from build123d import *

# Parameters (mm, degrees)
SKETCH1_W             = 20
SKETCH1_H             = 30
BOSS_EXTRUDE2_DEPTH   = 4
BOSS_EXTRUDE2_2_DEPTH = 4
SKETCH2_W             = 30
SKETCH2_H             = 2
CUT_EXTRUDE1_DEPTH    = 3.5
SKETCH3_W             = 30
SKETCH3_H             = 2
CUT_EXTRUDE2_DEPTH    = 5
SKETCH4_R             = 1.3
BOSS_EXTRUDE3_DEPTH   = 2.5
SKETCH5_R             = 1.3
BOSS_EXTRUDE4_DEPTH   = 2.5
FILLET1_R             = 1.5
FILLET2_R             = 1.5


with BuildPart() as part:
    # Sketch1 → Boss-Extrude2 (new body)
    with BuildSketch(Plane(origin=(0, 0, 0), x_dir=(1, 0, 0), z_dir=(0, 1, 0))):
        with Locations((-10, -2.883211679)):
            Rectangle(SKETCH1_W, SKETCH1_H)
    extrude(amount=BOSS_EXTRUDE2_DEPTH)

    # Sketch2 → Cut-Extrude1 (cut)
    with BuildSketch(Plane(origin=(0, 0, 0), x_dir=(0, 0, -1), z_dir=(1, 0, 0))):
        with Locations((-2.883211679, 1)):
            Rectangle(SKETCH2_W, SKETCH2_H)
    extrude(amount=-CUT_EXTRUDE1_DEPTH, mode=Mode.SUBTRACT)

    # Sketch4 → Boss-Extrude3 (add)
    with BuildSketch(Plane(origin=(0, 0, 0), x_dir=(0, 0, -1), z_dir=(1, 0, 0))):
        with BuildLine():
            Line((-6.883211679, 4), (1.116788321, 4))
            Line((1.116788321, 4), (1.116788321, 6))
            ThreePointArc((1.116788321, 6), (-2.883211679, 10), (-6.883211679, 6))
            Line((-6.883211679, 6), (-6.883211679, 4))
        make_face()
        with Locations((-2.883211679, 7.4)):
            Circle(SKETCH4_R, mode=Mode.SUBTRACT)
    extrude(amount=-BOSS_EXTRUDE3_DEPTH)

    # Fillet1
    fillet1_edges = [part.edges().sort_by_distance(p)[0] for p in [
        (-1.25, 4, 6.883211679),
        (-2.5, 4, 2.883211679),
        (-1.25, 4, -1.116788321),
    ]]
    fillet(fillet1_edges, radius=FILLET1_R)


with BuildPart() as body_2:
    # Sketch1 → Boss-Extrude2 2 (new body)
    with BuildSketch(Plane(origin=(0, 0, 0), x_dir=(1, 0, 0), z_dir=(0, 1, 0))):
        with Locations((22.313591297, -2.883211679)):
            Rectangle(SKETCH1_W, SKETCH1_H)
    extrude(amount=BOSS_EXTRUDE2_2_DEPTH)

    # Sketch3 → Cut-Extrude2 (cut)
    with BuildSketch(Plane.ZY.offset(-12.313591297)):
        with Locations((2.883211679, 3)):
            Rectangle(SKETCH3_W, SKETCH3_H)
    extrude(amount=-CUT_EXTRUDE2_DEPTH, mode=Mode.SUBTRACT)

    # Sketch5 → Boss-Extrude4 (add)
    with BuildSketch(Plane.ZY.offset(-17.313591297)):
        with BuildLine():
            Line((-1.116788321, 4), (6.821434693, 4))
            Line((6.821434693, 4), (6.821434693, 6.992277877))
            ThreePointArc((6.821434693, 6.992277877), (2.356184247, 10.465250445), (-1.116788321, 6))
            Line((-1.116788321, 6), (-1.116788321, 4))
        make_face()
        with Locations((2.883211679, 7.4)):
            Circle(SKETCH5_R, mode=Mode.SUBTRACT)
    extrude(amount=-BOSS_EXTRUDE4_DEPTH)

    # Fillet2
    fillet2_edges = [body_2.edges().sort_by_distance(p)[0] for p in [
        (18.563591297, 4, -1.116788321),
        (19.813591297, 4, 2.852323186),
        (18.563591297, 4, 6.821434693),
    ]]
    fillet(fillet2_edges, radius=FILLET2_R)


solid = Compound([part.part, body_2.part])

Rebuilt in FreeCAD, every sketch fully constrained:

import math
import FreeCAD as App
import Part
import Sketcher


def edges_at(feature, points):
    """Names of the edges that pass closest to the given points."""
    edges = feature.Shape.Edges
    near = lambda p: min(range(len(edges)), key=lambda i: edges[i].distToShape(Part.Vertex(*p))[0])
    return sorted({f"Edge{near(p) + 1}" for p in points})


def add_polygon(sketch, points):
    """Adds a closed chain of lines whose ends are joined by coincident constraints."""
    first, n = sketch.GeometryCount, len(points)
    for a, b in zip(points, points[1:] + points[:1]):
        sketch.addGeometry(Part.LineSegment(App.Vector(*a, 0), App.Vector(*b, 0)), False)
    for i in range(n):
        sketch.addConstraint(Sketcher.Constraint("Coincident", first + i, 2, first + (i + 1) % n, 1))

doc = App.newDocument("Part")
body = doc.addObject("PartDesign::Body", "Body")

sketch1 = doc.addObject("Sketcher::SketchObject", "Sketch")
body.addObject(sketch1)
sketch1.AttachmentSupport = (doc.XZ_Plane, [""])
sketch1.MapMode = "FlatFace"
add_polygon(sketch1, [(-20, -12.116788), (-20, 17.883212), (0, 17.883212), (0, -12.116788)])
sketch1.addConstraint(Sketcher.Constraint("Vertical", 0))
sketch1.addConstraint(Sketcher.Constraint("Horizontal", 1))
sketch1.addConstraint(Sketcher.Constraint("Vertical", 2))
sketch1.addConstraint(Sketcher.Constraint("Horizontal", 3))
sketch1.addConstraint(Sketcher.Constraint("PointOnObject", 1, 2, -2))
sketch1.addConstraint(Sketcher.Constraint("DistanceX", 1, 1, 1, 2, 20.0))
sketch1.addConstraint(Sketcher.Constraint("DistanceY", 0, 1, 0, 2, 30.0))
sketch1.addConstraint(Sketcher.Constraint("DistanceY", -1, 1, 0, 2, 17.883212))
pad1 = doc.addObject("PartDesign::Pad", "Pad")
body.addObject(pad1)
pad1.Profile = sketch1
pad1.Length = 4
pad1.Reversed = True

sketch2 = doc.addObject("Sketcher::SketchObject", "Sketch001")
body.addObject(sketch2)
sketch2.AttachmentSupport = (doc.YZ_Plane, [""])
sketch2.MapMode = "FlatFace"
add_polygon(sketch2, [(2, 17.883212), (0, 17.883212), (0, -12.116788), (2, -12.116788)])
sketch2.addConstraint(Sketcher.Constraint("Horizontal", 0))
sketch2.addConstraint(Sketcher.Constraint("Vertical", 1))
sketch2.addConstraint(Sketcher.Constraint("Horizontal", 2))
sketch2.addConstraint(Sketcher.Constraint("Vertical", 3))
sketch2.addConstraint(Sketcher.Constraint("PointOnObject", 0, 2, -2))
sketch2.addConstraint(Sketcher.Constraint("DistanceX", 0, 2, 0, 1, 2.0))
sketch2.addConstraint(Sketcher.Constraint("DistanceY", 1, 2, 1, 1, 30.0))
sketch2.addConstraint(Sketcher.Constraint("DistanceY", -1, 1, 0, 2, 17.883212))
pocket1 = doc.addObject("PartDesign::Pocket", "Pocket")
body.addObject(pocket1)
pocket1.Profile = sketch2
pocket1.Length = 3.5

sketch3 = doc.addObject("Sketcher::SketchObject", "Sketch002")
body.addObject(sketch3)
sketch3.AttachmentSupport = (doc.YZ_Plane, [""])
sketch3.MapMode = "FlatFace"
sketch3.addGeometry(Part.LineSegment(App.Vector(4, 6.883212, 0), App.Vector(4, -1.116788, 0)), False)
sketch3.addGeometry(Part.LineSegment(App.Vector(4, -1.116788, 0), App.Vector(6, -1.116788, 0)), False)
sketch3.addGeometry(Part.ArcOfCircle(Part.Circle(App.Vector(6, 2.883212, 0), App.Vector(0, 0, 1), 4), math.radians(-90), math.radians(90)), False)
sketch3.addGeometry(Part.LineSegment(App.Vector(6, 6.883212, 0), App.Vector(4, 6.883212, 0)), False)
sketch3.addGeometry(Part.Circle(App.Vector(7.4, 2.883212, 0), App.Vector(0, 0, 1), 1.3), False)
sketch3.addConstraint(Sketcher.Constraint("Coincident", 0, 2, 1, 1))
sketch3.addConstraint(Sketcher.Constraint("Tangent", 1, 2, 2, 1))
sketch3.addConstraint(Sketcher.Constraint("Tangent", 2, 2, 3, 1))
sketch3.addConstraint(Sketcher.Constraint("Coincident", 3, 2, 0, 1))
sketch3.addConstraint(Sketcher.Constraint("Vertical", 0))
sketch3.addConstraint(Sketcher.Constraint("Horizontal", 1))
sketch3.addConstraint(Sketcher.Constraint("Horizontal", 3))
sketch3.addConstraint(Sketcher.Constraint("Horizontal", 2, 3, 4, 3))
sketch3.addConstraint(Sketcher.Constraint("Radius", 2, 4.0))
sketch3.addConstraint(Sketcher.Constraint("Diameter", 4, 2.6))
sketch3.addConstraint(Sketcher.Constraint("DistanceX", 1, 1, 1, 2, 2.0))
sketch3.addConstraint(Sketcher.Constraint("DistanceX", -1, 1, 2, 3, 6.0))
sketch3.addConstraint(Sketcher.Constraint("DistanceX", -1, 1, 4, 3, 7.4))
sketch3.addConstraint(Sketcher.Constraint("DistanceY", -1, 1, 2, 3, 2.883212))
pad2 = doc.addObject("PartDesign::Pad", "Pad001")
body.addObject(pad2)
pad2.Profile = sketch3
pad2.Length = 2.5
pad2.Reversed = True
doc.recompute()

fillet = doc.addObject("PartDesign::Fillet", "Fillet")
body.addObject(fillet)
fillet.Base = (pad2, edges_at(pad2, [(-1.25, 4, 6.883), (-2.5, 4, 2.883), (-1.25, 4, -1.117)]))
fillet.Radius = 1.5
body2 = doc.addObject("PartDesign::Body", "Body001")

sketch4 = doc.addObject("Sketcher::SketchObject", "Sketch003")
body2.addObject(sketch4)
sketch4.AttachmentSupport = (doc.getObject("XZ_Plane001"), [""])
sketch4.MapMode = "FlatFace"
add_polygon(sketch4, [(12.313591, -12.116788), (12.313591, 17.883212), (32.313591, 17.883212), (32.313591, -12.116788)])
sketch4.addConstraint(Sketcher.Constraint("Vertical", 0))
sketch4.addConstraint(Sketcher.Constraint("Horizontal", 1))
sketch4.addConstraint(Sketcher.Constraint("Vertical", 2))
sketch4.addConstraint(Sketcher.Constraint("Horizontal", 3))
sketch4.addConstraint(Sketcher.Constraint("DistanceX", 1, 1, 1, 2, 20.0))
sketch4.addConstraint(Sketcher.Constraint("DistanceY", 0, 1, 0, 2, 30.0))
sketch4.addConstraint(Sketcher.Constraint("DistanceX", -1, 1, 0, 2, 12.313591))
sketch4.addConstraint(Sketcher.Constraint("DistanceY", -1, 1, 0, 2, 17.883212))
pad3 = doc.addObject("PartDesign::Pad", "Pad002")
body2.addObject(pad3)
pad3.Profile = sketch4
pad3.Length = 4
pad3.Reversed = True

sketch5 = doc.addObject("Sketcher::SketchObject", "Sketch004")
body2.addObject(sketch5)
sketch5.AttachmentSupport = (doc.getObject("YZ_Plane001"), [""])
sketch5.MapMode = "FlatFace"
sketch5.AttachmentOffset = App.Placement(App.Vector(0, 0, 12.313591), App.Rotation())
add_polygon(sketch5, [(4, -12.116788), (2, -12.116788), (2, 17.883212), (4, 17.883212)])
sketch5.addConstraint(Sketcher.Constraint("Horizontal", 0))
sketch5.addConstraint(Sketcher.Constraint("Vertical", 1))
sketch5.addConstraint(Sketcher.Constraint("Horizontal", 2))
sketch5.addConstraint(Sketcher.Constraint("Vertical", 3))
sketch5.addConstraint(Sketcher.Constraint("DistanceX", 0, 2, 0, 1, 2.0))
sketch5.addConstraint(Sketcher.Constraint("DistanceY", 1, 1, 1, 2, 30.0))
sketch5.addConstraint(Sketcher.Constraint("DistanceX", -1, 1, 0, 2, 2.0))
sketch5.addConstraint(Sketcher.Constraint("DistanceY", 0, 2, -1, 1, 12.116788))
pocket2 = doc.addObject("PartDesign::Pocket", "Pocket001")
body2.addObject(pocket2)
pocket2.Profile = sketch5
pocket2.Length = 5
pocket2.Reversed = True

sketch6 = doc.addObject("Sketcher::SketchObject", "Sketch005")
body2.addObject(sketch6)
sketch6.AttachmentSupport = (doc.getObject("YZ_Plane001"), [""])
sketch6.MapMode = "FlatFace"
sketch6.AttachmentOffset = App.Placement(App.Vector(0, 0, 17.313591), App.Rotation())
sketch6.addGeometry(Part.LineSegment(App.Vector(4, -1.116788, 0), App.Vector(4, 6.821435, 0)), False)
sketch6.addGeometry(Part.LineSegment(App.Vector(4, 6.821435, 0), App.Vector(6.992278, 6.821435, 0)), False)
sketch6.addGeometry(Part.ArcOfCircle(Part.Circle(App.Vector(6.496139, 2.852323, 0), App.Vector(0, 0, 1), 4), math.radians(-97.125016), math.radians(82.874984)), False)
sketch6.addGeometry(Part.LineSegment(App.Vector(6, -1.116788, 0), App.Vector(4, -1.116788, 0)), False)
sketch6.addGeometry(Part.Circle(App.Vector(7.4, 2.883212, 0), App.Vector(0, 0, 1), 1.3), False)
sketch6.addConstraint(Sketcher.Constraint("Coincident", 0, 2, 1, 1))
sketch6.addConstraint(Sketcher.Constraint("Coincident", 1, 2, 2, 2))
sketch6.addConstraint(Sketcher.Constraint("Coincident", 2, 1, 3, 1))
sketch6.addConstraint(Sketcher.Constraint("Coincident", 3, 2, 0, 1))
sketch6.addConstraint(Sketcher.Constraint("Vertical", 0))
sketch6.addConstraint(Sketcher.Constraint("Horizontal", 1))
sketch6.addConstraint(Sketcher.Constraint("Horizontal", 3))
sketch6.addConstraint(Sketcher.Constraint("Radius", 2, 4.0))
sketch6.addConstraint(Sketcher.Constraint("Diameter", 4, 2.6))
sketch6.addConstraint(Sketcher.Constraint("DistanceX", 3, 2, 3, 1, 2.0))
sketch6.addConstraint(Sketcher.Constraint("DistanceX", -1, 1, 0, 2, 4.0))
sketch6.addConstraint(Sketcher.Constraint("DistanceY", 2, 1, 4, 3, 4.0))
sketch6.addConstraint(Sketcher.Constraint("DistanceX", -1, 1, 4, 3, 7.4))
sketch6.addConstraint(Sketcher.Constraint("DistanceX", 1, 1, 1, 2, 2.992278))
sketch6.addConstraint(Sketcher.Constraint("DistanceX", -1, 1, 2, 3, 6.496139))
sketch6.addConstraint(Sketcher.Constraint("DistanceY", -1, 1, 4, 3, 2.883212))
pad4 = doc.addObject("PartDesign::Pad", "Pad003")
body2.addObject(pad4)
pad4.Profile = sketch6
pad4.Length = 2.5
doc.recompute()

fillet2 = doc.addObject("PartDesign::Fillet", "Fillet001")
body2.addObject(fillet2)
fillet2.Base = (pad4, edges_at(pad4, [(18.564, 4, -1.117), (19.814, 4, 2.852), (18.564, 4, 6.821)]))
fillet2.Radius = 1.5

doc.recompute()
